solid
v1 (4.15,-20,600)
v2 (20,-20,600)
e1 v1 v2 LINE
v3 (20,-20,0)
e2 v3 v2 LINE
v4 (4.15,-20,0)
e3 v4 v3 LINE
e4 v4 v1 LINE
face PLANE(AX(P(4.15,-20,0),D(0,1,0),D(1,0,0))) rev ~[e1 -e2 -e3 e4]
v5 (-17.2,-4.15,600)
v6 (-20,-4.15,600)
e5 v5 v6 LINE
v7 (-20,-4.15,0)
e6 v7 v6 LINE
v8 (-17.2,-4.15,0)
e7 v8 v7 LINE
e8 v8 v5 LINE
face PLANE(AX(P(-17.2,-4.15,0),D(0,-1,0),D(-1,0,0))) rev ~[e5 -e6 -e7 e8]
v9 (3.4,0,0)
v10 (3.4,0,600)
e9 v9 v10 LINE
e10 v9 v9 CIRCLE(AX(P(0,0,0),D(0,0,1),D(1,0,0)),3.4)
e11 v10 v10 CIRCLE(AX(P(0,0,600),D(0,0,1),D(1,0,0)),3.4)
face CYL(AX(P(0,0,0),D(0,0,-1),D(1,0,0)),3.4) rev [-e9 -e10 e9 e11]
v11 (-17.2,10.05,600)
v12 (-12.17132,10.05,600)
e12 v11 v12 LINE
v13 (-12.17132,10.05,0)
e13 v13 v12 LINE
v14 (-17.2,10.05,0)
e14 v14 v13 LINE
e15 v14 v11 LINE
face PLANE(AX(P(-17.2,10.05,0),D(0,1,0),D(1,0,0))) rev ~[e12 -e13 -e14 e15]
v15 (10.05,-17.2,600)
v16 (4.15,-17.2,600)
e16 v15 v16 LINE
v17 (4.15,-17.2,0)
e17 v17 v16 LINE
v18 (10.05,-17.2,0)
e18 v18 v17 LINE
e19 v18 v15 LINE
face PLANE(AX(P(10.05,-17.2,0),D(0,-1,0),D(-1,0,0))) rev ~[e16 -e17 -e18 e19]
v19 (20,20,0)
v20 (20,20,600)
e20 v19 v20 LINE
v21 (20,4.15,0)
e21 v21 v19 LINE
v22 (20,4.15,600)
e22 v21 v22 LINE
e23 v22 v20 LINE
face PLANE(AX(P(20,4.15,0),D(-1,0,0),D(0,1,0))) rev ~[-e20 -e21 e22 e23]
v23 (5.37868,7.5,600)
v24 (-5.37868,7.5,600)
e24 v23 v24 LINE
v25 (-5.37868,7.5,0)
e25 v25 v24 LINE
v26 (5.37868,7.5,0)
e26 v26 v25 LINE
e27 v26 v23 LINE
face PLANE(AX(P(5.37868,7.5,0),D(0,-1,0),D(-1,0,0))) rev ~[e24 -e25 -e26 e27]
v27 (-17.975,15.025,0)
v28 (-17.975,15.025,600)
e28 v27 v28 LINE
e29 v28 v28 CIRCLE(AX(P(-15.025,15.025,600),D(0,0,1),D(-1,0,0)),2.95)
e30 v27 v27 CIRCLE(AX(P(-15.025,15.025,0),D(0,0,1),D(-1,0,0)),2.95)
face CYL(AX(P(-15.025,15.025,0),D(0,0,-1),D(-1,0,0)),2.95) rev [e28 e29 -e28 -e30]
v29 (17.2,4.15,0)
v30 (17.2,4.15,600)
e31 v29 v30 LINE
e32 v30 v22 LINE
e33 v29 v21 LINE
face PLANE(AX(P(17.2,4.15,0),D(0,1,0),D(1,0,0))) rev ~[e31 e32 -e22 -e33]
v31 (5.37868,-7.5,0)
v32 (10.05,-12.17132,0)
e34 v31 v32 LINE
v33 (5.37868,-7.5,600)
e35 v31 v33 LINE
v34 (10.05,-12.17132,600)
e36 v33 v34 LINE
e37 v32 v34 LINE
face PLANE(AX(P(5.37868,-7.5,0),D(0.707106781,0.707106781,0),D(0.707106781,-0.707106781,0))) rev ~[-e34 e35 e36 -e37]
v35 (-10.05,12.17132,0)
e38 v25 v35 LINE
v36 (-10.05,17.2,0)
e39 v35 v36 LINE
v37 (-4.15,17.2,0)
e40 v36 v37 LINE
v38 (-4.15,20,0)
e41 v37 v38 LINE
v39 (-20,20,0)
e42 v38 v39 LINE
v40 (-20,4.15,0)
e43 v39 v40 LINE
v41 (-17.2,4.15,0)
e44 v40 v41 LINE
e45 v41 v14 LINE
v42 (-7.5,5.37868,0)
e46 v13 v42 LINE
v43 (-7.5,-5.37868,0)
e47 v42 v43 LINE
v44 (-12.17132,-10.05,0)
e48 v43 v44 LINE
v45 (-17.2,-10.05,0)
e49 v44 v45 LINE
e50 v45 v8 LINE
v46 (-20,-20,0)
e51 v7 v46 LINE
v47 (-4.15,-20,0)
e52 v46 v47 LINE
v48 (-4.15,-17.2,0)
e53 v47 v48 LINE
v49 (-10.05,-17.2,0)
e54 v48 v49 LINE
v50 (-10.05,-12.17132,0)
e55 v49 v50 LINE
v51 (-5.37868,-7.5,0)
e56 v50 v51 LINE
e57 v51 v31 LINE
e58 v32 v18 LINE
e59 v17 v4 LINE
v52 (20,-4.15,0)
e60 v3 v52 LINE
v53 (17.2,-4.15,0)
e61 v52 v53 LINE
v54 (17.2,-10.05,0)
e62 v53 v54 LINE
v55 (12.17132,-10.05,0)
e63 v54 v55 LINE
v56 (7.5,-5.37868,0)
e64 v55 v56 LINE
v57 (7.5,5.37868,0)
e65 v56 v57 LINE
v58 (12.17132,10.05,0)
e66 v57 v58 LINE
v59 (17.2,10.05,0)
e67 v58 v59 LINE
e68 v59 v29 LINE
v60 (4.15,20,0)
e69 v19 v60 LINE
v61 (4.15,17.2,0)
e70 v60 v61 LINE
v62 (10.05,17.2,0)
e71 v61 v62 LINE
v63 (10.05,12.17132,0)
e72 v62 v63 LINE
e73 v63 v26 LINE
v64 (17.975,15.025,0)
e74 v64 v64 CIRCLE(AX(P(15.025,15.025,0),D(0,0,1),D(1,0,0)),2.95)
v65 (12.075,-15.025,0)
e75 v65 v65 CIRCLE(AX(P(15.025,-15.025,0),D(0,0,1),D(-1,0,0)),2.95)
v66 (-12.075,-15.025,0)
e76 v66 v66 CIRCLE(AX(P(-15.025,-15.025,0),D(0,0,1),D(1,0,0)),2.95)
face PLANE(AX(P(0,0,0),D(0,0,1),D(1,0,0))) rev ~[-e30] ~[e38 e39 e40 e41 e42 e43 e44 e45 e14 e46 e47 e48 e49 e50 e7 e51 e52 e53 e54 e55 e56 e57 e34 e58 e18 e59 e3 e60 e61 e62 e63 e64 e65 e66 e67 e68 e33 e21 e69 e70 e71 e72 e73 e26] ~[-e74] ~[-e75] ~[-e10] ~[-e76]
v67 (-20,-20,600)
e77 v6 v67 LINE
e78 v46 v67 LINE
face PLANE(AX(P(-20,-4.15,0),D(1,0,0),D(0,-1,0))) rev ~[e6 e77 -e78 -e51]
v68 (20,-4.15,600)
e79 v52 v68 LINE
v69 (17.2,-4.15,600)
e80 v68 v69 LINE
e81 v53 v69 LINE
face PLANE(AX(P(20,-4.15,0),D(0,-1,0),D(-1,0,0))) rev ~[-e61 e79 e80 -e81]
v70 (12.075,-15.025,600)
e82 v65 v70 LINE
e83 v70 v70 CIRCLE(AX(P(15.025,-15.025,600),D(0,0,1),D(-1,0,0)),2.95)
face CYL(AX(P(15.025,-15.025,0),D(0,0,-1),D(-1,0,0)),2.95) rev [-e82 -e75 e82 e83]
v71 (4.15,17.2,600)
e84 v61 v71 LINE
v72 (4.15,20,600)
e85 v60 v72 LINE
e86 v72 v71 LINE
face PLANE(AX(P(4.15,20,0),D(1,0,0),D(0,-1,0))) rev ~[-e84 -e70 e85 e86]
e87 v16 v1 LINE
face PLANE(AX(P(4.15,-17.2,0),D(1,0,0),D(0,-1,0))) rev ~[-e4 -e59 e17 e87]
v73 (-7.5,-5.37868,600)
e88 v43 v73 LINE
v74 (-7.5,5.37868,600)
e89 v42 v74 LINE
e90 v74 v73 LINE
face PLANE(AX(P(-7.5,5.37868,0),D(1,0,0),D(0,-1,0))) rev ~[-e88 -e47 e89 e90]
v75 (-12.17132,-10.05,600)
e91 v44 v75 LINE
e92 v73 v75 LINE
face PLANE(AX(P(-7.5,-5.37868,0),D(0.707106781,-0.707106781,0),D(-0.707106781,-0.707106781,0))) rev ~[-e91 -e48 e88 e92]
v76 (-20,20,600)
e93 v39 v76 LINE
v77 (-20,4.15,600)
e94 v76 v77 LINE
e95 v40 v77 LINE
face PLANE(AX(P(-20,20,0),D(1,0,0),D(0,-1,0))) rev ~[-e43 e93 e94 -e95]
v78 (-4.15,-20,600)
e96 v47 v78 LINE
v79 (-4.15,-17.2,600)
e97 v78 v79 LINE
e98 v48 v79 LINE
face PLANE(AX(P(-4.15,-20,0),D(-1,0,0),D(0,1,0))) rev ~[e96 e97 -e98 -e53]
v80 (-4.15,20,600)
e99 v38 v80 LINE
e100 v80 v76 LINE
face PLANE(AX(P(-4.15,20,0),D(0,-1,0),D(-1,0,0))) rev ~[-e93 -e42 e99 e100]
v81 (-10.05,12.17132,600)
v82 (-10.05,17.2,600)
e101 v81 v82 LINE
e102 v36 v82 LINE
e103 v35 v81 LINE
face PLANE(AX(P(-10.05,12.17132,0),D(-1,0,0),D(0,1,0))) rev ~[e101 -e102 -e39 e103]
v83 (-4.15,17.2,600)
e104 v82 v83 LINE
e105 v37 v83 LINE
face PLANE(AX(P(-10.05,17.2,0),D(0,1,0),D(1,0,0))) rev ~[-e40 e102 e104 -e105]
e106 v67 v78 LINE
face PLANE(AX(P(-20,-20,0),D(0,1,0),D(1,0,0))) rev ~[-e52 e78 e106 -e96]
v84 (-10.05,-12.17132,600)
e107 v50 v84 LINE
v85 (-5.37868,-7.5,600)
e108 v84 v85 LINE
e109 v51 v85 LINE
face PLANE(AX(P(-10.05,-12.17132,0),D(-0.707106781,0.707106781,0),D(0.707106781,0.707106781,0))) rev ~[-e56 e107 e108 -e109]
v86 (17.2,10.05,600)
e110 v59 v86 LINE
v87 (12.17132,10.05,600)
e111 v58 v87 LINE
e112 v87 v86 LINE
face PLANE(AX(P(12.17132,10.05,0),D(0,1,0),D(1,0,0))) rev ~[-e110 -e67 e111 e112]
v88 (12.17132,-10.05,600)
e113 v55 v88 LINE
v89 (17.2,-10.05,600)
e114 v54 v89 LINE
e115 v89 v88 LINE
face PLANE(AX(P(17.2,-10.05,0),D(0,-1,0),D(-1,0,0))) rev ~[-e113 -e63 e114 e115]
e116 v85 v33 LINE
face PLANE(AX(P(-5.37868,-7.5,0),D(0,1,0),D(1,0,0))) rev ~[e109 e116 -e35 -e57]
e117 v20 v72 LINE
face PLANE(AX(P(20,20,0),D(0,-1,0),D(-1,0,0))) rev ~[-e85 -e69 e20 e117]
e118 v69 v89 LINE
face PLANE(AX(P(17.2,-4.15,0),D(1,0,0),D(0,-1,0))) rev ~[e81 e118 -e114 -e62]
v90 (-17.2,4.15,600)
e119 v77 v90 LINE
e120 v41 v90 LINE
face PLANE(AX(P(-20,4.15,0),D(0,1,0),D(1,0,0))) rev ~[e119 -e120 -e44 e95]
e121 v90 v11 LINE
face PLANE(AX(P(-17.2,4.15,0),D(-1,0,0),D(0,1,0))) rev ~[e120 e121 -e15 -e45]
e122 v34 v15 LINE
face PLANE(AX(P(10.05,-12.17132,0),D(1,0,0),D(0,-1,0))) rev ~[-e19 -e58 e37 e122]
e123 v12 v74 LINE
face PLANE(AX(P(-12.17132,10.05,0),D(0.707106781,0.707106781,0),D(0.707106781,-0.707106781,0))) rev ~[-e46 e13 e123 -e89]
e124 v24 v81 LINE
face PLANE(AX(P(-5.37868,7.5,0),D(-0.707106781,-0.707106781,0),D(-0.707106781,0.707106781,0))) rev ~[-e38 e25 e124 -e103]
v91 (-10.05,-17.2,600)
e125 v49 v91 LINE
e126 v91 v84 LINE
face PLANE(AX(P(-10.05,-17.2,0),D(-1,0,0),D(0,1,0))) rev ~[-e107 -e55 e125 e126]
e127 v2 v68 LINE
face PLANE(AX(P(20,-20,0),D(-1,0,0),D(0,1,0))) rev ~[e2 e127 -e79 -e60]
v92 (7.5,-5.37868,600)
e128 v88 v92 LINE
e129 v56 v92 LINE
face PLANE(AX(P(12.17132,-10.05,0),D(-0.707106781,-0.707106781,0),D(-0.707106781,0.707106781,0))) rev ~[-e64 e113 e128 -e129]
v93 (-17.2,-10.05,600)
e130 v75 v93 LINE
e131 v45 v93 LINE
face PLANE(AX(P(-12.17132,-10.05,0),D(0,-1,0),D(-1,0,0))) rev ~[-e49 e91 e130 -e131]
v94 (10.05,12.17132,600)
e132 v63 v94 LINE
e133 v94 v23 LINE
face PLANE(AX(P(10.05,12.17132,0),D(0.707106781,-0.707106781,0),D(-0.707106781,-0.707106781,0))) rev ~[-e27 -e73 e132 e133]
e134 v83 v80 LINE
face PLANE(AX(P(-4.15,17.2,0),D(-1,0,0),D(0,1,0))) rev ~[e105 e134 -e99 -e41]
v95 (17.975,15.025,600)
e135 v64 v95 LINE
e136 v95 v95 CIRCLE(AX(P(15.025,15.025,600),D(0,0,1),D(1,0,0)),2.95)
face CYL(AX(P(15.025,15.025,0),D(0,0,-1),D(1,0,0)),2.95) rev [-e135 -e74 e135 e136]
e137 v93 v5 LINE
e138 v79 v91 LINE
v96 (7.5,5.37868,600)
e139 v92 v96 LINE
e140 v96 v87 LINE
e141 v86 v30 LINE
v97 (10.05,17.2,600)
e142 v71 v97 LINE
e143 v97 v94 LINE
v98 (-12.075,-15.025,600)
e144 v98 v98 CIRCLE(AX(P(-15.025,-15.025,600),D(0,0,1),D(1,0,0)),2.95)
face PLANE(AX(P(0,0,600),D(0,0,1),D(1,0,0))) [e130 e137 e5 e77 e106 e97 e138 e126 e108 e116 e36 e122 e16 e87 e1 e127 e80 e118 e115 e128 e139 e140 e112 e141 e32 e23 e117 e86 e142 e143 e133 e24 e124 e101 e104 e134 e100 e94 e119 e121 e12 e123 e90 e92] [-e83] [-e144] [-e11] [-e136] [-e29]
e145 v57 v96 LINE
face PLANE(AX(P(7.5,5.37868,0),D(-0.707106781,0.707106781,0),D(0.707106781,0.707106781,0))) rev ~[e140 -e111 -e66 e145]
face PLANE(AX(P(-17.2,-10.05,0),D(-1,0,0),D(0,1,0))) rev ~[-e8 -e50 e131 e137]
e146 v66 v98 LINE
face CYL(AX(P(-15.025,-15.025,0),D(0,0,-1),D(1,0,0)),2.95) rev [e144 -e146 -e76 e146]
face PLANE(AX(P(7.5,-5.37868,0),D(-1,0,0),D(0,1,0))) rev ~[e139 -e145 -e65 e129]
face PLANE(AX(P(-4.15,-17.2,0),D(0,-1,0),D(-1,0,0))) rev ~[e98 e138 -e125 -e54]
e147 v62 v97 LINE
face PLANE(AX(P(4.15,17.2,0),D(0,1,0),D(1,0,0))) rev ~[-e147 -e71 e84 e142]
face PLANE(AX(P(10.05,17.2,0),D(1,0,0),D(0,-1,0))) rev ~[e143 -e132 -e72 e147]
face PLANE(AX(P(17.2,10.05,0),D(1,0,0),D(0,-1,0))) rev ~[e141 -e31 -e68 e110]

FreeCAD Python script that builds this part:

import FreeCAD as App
import Part
import Sketcher
from FreeCAD import Vector
Q = App.Units.Quantity

doc = App.newDocument("Part")
body = doc.addObject("PartDesign::Body", "Body")

sketch1 = doc.addObject("Sketcher::SketchObject", "Sketch")
body.addObject(sketch1)
sketch1.AttachmentSupport = (doc.XY_Plane, [""])
sketch1.MapMode = "FlatFace"
sketch1.addGeometry([
    Part.LineSegment(Vector(-5.4, -7.5, 0), Vector(5.4, -7.5, 0)),
    Part.LineSegment(Vector(5.4, -7.5, 0), Vector(10.1, -12.2, 0)),
    Part.LineSegment(Vector(10.1, -12.2, 0), Vector(10.1, -17.2, 0)),
    Part.LineSegment(Vector(10.1, -17.2, 0), Vector(4.2, -17.2, 0)),
    Part.LineSegment(Vector(4.2, -17.2, 0), Vector(4.2, -20, 0)),
    Part.LineSegment(Vector(4.2, -20, 0), Vector(20, -20, 0)),
    Part.LineSegment(Vector(20, -20, 0), Vector(20, -4.2, 0)),
    Part.LineSegment(Vector(20, -4.2, 0), Vector(17.2, -4.2, 0)),
    Part.LineSegment(Vector(17.2, -4.2, 0), Vector(17.2, -10.1, 0)),
    Part.LineSegment(Vector(17.2, -10.1, 0), Vector(12.2, -10.1, 0)),
    Part.LineSegment(Vector(12.2, -10.1, 0), Vector(7.5, -5.4, 0)),
    Part.LineSegment(Vector(7.5, -5.4, 0), Vector(7.5, 5.4, 0)),
    Part.LineSegment(Vector(7.5, 5.4, 0), Vector(12.2, 10.1, 0)),
    Part.LineSegment(Vector(12.2, 10.1, 0), Vector(17.2, 10.1, 0)),
    Part.LineSegment(Vector(17.2, 10.1, 0), Vector(17.2, 4.2, 0)),
    Part.LineSegment(Vector(17.2, 4.2, 0), Vector(20, 4.2, 0)),
    Part.LineSegment(Vector(20, 4.2, 0), Vector(20, 20, 0)),
    Part.LineSegment(Vector(20, 20, 0), Vector(4.2, 20, 0)),
    Part.LineSegment(Vector(4.2, 20, 0), Vector(4.2, 17.2, 0)),
    Part.LineSegment(Vector(4.2, 17.2, 0), Vector(10.1, 17.2, 0)),
    Part.LineSegment(Vector(10.1, 17.2, 0), Vector(10.1, 12.2, 0)),
    Part.LineSegment(Vector(10.1, 12.2, 0), Vector(5.4, 7.5, 0)),
    Part.LineSegment(Vector(5.4, 7.5, 0), Vector(-5.4, 7.5, 0)),
    Part.LineSegment(Vector(-5.4, 7.5, 0), Vector(-10.1, 12.2, 0)),
    Part.LineSegment(Vector(-10.1, 12.2, 0), Vector(-10.1, 17.2, 0)),
    Part.LineSegment(Vector(-10.1, 17.2, 0), Vector(-4.2, 17.2, 0)),
    Part.LineSegment(Vector(-4.2, 17.2, 0), Vector(-4.2, 20, 0)),
    Part.LineSegment(Vector(-4.2, 20, 0), Vector(-20, 20, 0)),
    Part.LineSegment(Vector(-20, 20, 0), Vector(-20, 4.2, 0)),
    Part.LineSegment(Vector(-20, 4.2, 0), Vector(-17.2, 4.2, 0)),
    Part.LineSegment(Vector(-17.2, 4.2, 0), Vector(-17.2, 10.1, 0)),
    Part.LineSegment(Vector(-17.2, 10.1, 0), Vector(-12.2, 10.1, 0)),
    Part.LineSegment(Vector(-12.2, 10.1, 0), Vector(-7.5, 5.4, 0)),
    Part.LineSegment(Vector(-7.5, 5.4, 0), Vector(-7.5, -5.4, 0)),
    Part.LineSegment(Vector(-7.5, -5.4, 0), Vector(-12.2, -10.1, 0)),
    Part.LineSegment(Vector(-12.2, -10.1, 0), Vector(-17.2, -10.1, 0)),
    Part.LineSegment(Vector(-17.2, -10.1, 0), Vector(-17.2, -4.2, 0)),
    Part.LineSegment(Vector(-17.2, -4.2, 0), Vector(-20, -4.2, 0)),
    Part.LineSegment(Vector(-20, -4.2, 0), Vector(-20, -20, 0)),
    Part.LineSegment(Vector(-20, -20, 0), Vector(-4.2, -20, 0)),
    Part.LineSegment(Vector(-4.2, -20, 0), Vector(-4.2, -17.2, 0)),
    Part.LineSegment(Vector(-4.2, -17.2, 0), Vector(-10.1, -17.2, 0)),
    Part.LineSegment(Vector(-10.1, -17.2, 0), Vector(-10.1, -12.2, 0)),
    Part.LineSegment(Vector(-10.1, -12.2, 0), Vector(-5.4, -7.5, 0)),
    Part.Circle(Vector(-15, -15, 0), Vector(0, 0, 1), 3),
    Part.Circle(Vector(15, -15, 0), Vector(0, 0, 1), 3),
    Part.Circle(Vector(-15, 15, 0), Vector(0, 0, 1), 3),
    Part.Circle(Vector(0, 0, 0), Vector(0, 0, 1), 3.4),
    Part.Circle(Vector(15, 15, 0), Vector(0, 0, 1), 3),
], False)
sketch1.addConstraint([
    Sketcher.Constraint("Coincident", 0, 2, 1, 1),
    Sketcher.Constraint("Coincident", 1, 2, 2, 1),
    Sketcher.Constraint("Coincident", 2, 2, 3, 1),
    Sketcher.Constraint("Coincident", 3, 2, 4, 1),
    Sketcher.Constraint("Coincident", 4, 2, 5, 1),
    Sketcher.Constraint("Coincident", 5, 2, 6, 1),
    Sketcher.Constraint("Coincident", 6, 2, 7, 1),
    Sketcher.Constraint("Coincident", 7, 2, 8, 1),
    Sketcher.Constraint("Coincident", 8, 2, 9, 1),
    Sketcher.Constraint("Coincident", 9, 2, 10, 1),
    Sketcher.Constraint("Coincident", 10, 2, 11, 1),
    Sketcher.Constraint("Coincident", 11, 2, 12, 1),
    Sketcher.Constraint("Coincident", 12, 2, 13, 1),
    Sketcher.Constraint("Coincident", 13, 2, 14, 1),
    Sketcher.Constraint("Coincident", 14, 2, 15, 1),
    Sketcher.Constraint("Coincident", 15, 2, 16, 1),
    Sketcher.Constraint("Coincident", 16, 2, 17, 1),
    Sketcher.Constraint("Coincident", 17, 2, 18, 1),
    Sketcher.Constraint("Coincident", 18, 2, 19, 1),
    Sketcher.Constraint("Coincident", 19, 2, 20, 1),
    Sketcher.Constraint("Coincident", 20, 2, 21, 1),
    Sketcher.Constraint("Coincident", 21, 2, 22, 1),
    Sketcher.Constraint("Coincident", 22, 2, 23, 1),
    Sketcher.Constraint("Coincident", 23, 2, 24, 1),
    Sketcher.Constraint("Coincident", 24, 2, 25, 1),
    Sketcher.Constraint("Coincident", 25, 2, 26, 1),
    Sketcher.Constraint("Coincident", 26, 2, 27, 1),
    Sketcher.Constraint("Coincident", 27, 2, 28, 1),
    Sketcher.Constraint("Coincident", 28, 2, 29, 1),
    Sketcher.Constraint("Coincident", 29, 2, 30, 1),
    Sketcher.Constraint("Coincident", 30, 2, 31, 1),
    Sketcher.Constraint("Coincident", 31, 2, 32, 1),
    Sketcher.Constraint("Coincident", 32, 2, 33, 1),
    Sketcher.Constraint("Coincident", 33, 2, 34, 1),
    Sketcher.Constraint("Coincident", 34, 2, 35, 1),
    Sketcher.Constraint("Coincident", 35, 2, 36, 1),
    Sketcher.Constraint("Coincident", 36, 2, 37, 1),
    Sketcher.Constraint("Coincident", 37, 2, 38, 1),
    Sketcher.Constraint("Coincident", 38, 2, 39, 1),
    Sketcher.Constraint("Coincident", 39, 2, 40, 1),
    Sketcher.Constraint("Coincident", 40, 2, 41, 1),
    Sketcher.Constraint("Coincident", 41, 2, 42, 1),
    Sketcher.Constraint("Coincident", 42, 2, 43, 1),
    Sketcher.Constraint("Coincident", 43, 2, 0, 1),
    Sketcher.Constraint("Horizontal", 0),
    Sketcher.Constraint("Vertical", 2),
    Sketcher.Constraint("Horizontal", 3),
    Sketcher.Constraint("Vertical", 4),
    Sketcher.Constraint("Horizontal", 5),
    Sketcher.Constraint("Vertical", 6),
    Sketcher.Constraint("Horizontal", 7),
    Sketcher.Constraint("Vertical", 8),
    Sketcher.Constraint("Horizontal", 9),
    Sketcher.Constraint("Vertical", 11),
    Sketcher.Constraint("Horizontal", 13),
    Sketcher.Constraint("Vertical", 14),
    Sketcher.Constraint("Horizontal", 15),
    Sketcher.Constraint("Vertical", 16),
    Sketcher.Constraint("Horizontal", 17),
    Sketcher.Constraint("Vertical", 18),
    Sketcher.Constraint("Horizontal", 19),
    Sketcher.Constraint("Vertical", 20),
    Sketcher.Constraint("Horizontal", 22),
    Sketcher.Constraint("Vertical", 24),
    Sketcher.Constraint("Horizontal", 25),
    Sketcher.Constraint("Vertical", 26),
    Sketcher.Constraint("Horizontal", 27),
    Sketcher.Constraint("Vertical", 28),
    Sketcher.Constraint("Horizontal", 29),
    Sketcher.Constraint("Vertical", 30),
    Sketcher.Constraint("Horizontal", 31),
    Sketcher.Constraint("Vertical", 33),
    Sketcher.Constraint("Horizontal", 35),
    Sketcher.Constraint("Vertical", 36),
    Sketcher.Constraint("Horizontal", 37),
    Sketcher.Constraint("Vertical", 38),
    Sketcher.Constraint("Horizontal", 39),
    Sketcher.Constraint("Vertical", 40),
    Sketcher.Constraint("Horizontal", 41),
    Sketcher.Constraint("Vertical", 42),
    Sketcher.Constraint("Coincident", 47, 3, -1, 1),
    Sketcher.Constraint("Equal", 44, 45),
    Sketcher.Constraint("Equal", 45, 46),
    Sketcher.Constraint("Equal", 46, 48),
    Sketcher.Constraint("Symmetric", 45, 3, 46, 3, -1, 1),
    Sketcher.Constraint("Symmetric", 44, 3, 48, 3, -1, 1),
    Sketcher.Constraint("Symmetric", 0, 2, 22, 2, -1, 1),
    Sketcher.Constraint("Symmetric", 1, 2, 23, 2, -1, 1),
    Sketcher.Constraint("Symmetric", 3, 2, 25, 2, -1, 1),
    Sketcher.Constraint("Symmetric", 5, 2, 27, 2, -1, 1),
    Sketcher.Constraint("Symmetric", 7, 2, 29, 2, -1, 1),
    Sketcher.Constraint("Symmetric", 9, 2, 31, 2, -1, 1),
    Sketcher.Constraint("Symmetric", 10, 2, 32, 2, -1, 1),
    Sketcher.Constraint("Symmetric", 12, 2, 34, 2, -1, 1),
    Sketcher.Constraint("Symmetric", 14, 2, 36, 2, -1, 1),
    Sketcher.Constraint("Symmetric", 16, 2, 38, 2, -1, 1),
    Sketcher.Constraint("Symmetric", 18, 2, 40, 2, -1, 1),
    Sketcher.Constraint("Symmetric", 20, 2, 42, 2, -1, 1),
    Sketcher.Constraint("Symmetric", 44, 3, 45, 3, -2),
    Sketcher.Constraint("Symmetric", 20, 2, 23, 2, -2),
    Sketcher.Constraint("Symmetric", 18, 2, 25, 2, -2),
    Sketcher.Constraint("Symmetric", 16, 2, 27, 2, -2),
    Sketcher.Constraint("Symmetric", 14, 2, 29, 2, -2),
    Sketcher.Constraint("Symmetric", 12, 2, 31, 2, -2),
    Sketcher.Constraint("Parallel", 1, 10),
    Sketcher.Constraint("Perpendicular", 10, 12),
    Sketcher.Constraint("Parallel", 12, 21),
    Sketcher.Constraint("Perpendicular", 32, 34),
    Sketcher.Constraint("Parallel", 34, 43),
    Sketcher.Constraint("Horizontal", 11, 2, 32, 2),
    Sketcher.Constraint("Equal", 35, 2),
    Sketcher.Constraint("Equal", 37, 4),
    Sketcher.Constraint("Equal", 39, 6),
    Sketcher.Constraint("Equal", 41, 8),
    Sketcher.Constraint("Equal", 22, 11),
    Sketcher.Constraint("Equal", 1, 10),
    Sketcher.Constraint("Diameter", 44, Q("5.9 mm")),
    Sketcher.Constraint("Diameter", 47, Q("6.8 mm")),
    Sketcher.Constraint("DistanceX", 3, 2, 3, 1, Q("5.9 mm")),
    Sketcher.Constraint("DistanceX", 7, 2, 7, 1, Q("2.8 mm")),
    Sketcher.Constraint("DistanceY", 4, 2, -1, 1, Q("20 mm")),
    Sketcher.Constraint("DistanceX", 5, 1, 5, 2, Q("15.85 mm")),
    Sketcher.Constraint("DistanceY", 0, 2, -1, 1, Q("7.5 mm")),
    Sketcher.Constraint("DistanceX", 44, 3, 45, 3, Q("30.05 mm")),
    Sketcher.Constraint("DistanceY", 44, 3, 46, 3, Q("30.05 mm")),
    Sketcher.Constraint("DistanceX", 0, 1, 0, 2, Q("10.757359 mm")),
])
pad1 = doc.addObject("PartDesign::Pad", "Pad")
body.addObject(pad1)
pad1.Profile = sketch1
pad1.Length = 600

doc.recompute()
